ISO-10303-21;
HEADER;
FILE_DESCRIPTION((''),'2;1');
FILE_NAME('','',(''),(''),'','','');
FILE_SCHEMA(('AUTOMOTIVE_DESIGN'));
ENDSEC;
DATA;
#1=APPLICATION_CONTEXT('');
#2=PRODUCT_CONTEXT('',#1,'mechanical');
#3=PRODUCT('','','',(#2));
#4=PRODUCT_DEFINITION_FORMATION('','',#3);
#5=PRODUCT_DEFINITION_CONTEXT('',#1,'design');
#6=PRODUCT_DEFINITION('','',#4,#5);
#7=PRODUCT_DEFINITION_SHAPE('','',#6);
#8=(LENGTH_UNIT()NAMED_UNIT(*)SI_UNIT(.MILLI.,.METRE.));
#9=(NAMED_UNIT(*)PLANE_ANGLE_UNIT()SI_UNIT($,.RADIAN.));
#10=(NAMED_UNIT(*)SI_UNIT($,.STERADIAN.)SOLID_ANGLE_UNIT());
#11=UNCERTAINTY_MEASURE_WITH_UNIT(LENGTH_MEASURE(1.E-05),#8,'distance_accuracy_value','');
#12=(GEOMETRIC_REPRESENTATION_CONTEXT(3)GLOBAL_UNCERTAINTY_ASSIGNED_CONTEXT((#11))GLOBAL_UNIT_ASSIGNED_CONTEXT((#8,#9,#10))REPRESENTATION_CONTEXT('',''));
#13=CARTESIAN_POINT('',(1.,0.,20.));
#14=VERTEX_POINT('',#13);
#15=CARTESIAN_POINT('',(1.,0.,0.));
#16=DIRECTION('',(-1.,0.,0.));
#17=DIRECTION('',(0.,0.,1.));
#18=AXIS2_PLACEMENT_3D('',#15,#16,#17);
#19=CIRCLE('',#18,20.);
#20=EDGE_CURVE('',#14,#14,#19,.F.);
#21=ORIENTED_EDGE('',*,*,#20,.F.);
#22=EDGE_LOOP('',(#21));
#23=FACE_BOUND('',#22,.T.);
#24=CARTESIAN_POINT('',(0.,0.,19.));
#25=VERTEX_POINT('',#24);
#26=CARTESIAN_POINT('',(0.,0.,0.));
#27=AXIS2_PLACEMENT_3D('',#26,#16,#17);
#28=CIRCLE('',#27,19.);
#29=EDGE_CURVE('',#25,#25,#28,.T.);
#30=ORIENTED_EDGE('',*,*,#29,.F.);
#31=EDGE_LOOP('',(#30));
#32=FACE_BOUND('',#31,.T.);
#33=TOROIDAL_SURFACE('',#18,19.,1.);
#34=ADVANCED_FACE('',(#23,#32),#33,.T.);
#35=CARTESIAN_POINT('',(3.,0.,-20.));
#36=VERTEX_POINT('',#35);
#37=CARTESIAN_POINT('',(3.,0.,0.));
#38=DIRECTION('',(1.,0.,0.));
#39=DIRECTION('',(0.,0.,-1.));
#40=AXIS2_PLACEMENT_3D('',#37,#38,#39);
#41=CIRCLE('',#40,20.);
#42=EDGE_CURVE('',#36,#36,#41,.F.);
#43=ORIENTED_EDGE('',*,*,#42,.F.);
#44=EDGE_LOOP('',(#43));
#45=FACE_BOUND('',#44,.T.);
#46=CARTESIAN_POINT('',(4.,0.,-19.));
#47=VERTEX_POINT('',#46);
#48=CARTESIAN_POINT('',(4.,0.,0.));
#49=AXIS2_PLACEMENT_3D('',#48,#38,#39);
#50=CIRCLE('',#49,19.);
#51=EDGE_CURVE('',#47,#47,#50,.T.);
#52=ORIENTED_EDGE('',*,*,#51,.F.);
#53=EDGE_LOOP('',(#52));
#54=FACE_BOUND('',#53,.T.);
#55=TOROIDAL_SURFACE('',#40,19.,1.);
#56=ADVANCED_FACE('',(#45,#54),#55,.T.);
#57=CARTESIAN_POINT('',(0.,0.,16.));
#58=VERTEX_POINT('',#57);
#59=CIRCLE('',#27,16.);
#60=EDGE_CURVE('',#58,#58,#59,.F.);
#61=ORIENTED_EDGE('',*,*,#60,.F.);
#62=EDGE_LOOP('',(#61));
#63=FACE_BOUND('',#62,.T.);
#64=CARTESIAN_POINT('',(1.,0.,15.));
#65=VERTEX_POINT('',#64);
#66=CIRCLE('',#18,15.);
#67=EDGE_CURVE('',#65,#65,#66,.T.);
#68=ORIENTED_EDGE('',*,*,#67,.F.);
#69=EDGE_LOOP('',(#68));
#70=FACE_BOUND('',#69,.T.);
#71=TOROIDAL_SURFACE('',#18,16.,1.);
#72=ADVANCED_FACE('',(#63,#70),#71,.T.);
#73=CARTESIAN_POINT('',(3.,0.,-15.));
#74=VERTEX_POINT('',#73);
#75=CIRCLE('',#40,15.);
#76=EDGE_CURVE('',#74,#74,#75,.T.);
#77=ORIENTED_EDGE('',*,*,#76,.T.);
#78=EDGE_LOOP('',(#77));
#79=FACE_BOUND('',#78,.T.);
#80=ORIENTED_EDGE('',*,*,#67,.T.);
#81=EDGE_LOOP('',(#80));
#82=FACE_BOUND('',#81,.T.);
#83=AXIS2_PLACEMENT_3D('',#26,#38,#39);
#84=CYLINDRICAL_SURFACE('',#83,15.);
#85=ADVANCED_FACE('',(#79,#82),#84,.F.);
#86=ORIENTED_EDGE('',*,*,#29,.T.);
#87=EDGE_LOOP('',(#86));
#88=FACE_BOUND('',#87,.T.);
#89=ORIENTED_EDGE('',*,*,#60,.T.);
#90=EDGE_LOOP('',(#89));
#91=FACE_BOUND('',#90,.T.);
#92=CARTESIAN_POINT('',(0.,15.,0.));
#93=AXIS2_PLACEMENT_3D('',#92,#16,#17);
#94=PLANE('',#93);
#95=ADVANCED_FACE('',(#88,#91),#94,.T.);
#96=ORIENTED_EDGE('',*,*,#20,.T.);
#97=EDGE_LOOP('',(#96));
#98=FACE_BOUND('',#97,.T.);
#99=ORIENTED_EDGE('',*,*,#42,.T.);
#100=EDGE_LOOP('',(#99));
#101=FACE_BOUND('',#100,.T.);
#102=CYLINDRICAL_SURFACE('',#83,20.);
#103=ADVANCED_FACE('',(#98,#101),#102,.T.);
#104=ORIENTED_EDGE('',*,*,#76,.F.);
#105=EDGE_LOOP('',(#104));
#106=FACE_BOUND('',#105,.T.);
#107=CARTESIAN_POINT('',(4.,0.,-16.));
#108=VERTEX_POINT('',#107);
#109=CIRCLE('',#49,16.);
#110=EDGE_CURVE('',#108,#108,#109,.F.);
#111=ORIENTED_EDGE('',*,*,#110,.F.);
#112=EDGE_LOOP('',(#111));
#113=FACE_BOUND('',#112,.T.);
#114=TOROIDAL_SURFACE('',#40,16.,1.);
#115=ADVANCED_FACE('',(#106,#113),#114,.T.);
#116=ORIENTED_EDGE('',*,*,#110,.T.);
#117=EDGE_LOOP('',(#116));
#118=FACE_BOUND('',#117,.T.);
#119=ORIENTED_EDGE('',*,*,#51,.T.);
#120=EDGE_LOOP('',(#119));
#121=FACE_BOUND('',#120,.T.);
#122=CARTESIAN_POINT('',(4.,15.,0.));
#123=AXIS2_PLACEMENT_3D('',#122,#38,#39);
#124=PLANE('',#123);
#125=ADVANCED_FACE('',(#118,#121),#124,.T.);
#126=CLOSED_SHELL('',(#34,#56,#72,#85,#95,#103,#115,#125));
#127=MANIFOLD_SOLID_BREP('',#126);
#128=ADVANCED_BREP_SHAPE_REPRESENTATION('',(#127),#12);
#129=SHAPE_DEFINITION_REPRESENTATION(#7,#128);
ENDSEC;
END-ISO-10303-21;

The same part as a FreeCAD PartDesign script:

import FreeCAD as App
import Part
import Sketcher
Q = App.Units.Quantity


def edges_at(feature, points):
    """Names of the edges that pass closest to the given points."""
    edges = feature.Shape.Edges
    near = lambda p: min(range(len(edges)), key=lambda i: edges[i].distToShape(Part.Vertex(*p))[0])
    return sorted({f"Edge{near(p) + 1}" for p in points})

doc = App.newDocument("Part")
params = doc.addObject("Spreadsheet::Sheet", "Params")
for row, (alias, value) in enumerate([
    ("sketch1_width", "4 mm"),
    ("sketch1_height", "5 mm"),
    ("revolution_angle", "360 deg"),
    ("fillet_radius", "1 mm"),
], start=1):
    params.set(f"A{row}", alias)
    params.set(f"B{row}", "=" + value)
    params.setAlias(f"B{row}", alias)

body = doc.addObject("PartDesign::Body", "Body")

sketch1 = body.newObject("Sketcher::SketchObject", "Sketch")
sketch1.AttachmentSupport = (doc.getObject("XY_Plane"), [""])
sketch1.MapMode = "FlatFace"
sketch1.addGeometry([
    Part.LineSegment(App.Vector(0, 20, 0), App.Vector(0, 15, 0)),
    Part.LineSegment(App.Vector(0, 15, 0), App.Vector(4, 15, 0)),
    Part.LineSegment(App.Vector(4, 15, 0), App.Vector(4, 20, 0)),
    Part.LineSegment(App.Vector(4, 20, 0), App.Vector(0, 20, 0)),
], False)
sketch1.addConstraint([
    Sketcher.Constraint("Coincident", 0, 2, 1, 1),
    Sketcher.Constraint("Coincident", 1, 2, 2, 1),
    Sketcher.Constraint("Coincident", 2, 2, 3, 1),
    Sketcher.Constraint("Coincident", 3, 2, 0, 1),
    Sketcher.Constraint("Vertical", 0),
    Sketcher.Constraint("Horizontal", 1),
    Sketcher.Constraint("Vertical", 2),
    Sketcher.Constraint("Horizontal", 3),
    Sketcher.Constraint("PointOnObject", 0, 2, -2),
    Sketcher.Constraint("DistanceX", 1, 1, 1, 2, Q("4 mm")),
    Sketcher.Constraint("DistanceY", 0, 2, 0, 1, Q("5 mm")),
    Sketcher.Constraint("DistanceY", -1, 1, 0, 2, Q("15 mm")),
])
sketch1.setExpression("Constraints[9]", "Params.sketch1_width")
sketch1.setExpression("Constraints[10]", "Params.sketch1_height")
revolution = body.newObject("PartDesign::Revolution", "Revolution")
revolution.Profile = sketch1
revolution.ReferenceAxis = (sketch1, ["H_Axis"])
revolution.setExpression("Angle", "Params.revolution_angle")
doc.recompute()

fillet = body.newObject("PartDesign::Fillet", "Fillet")
fillet.Base = (revolution, edges_at(revolution, [
    (0, 0, 15),
    (4, 0, 15),
    (4, 0, 20),
    (0, 0, 20),
]))
fillet.setExpression("Radius", "Params.fillet_radius")

doc.recompute()
